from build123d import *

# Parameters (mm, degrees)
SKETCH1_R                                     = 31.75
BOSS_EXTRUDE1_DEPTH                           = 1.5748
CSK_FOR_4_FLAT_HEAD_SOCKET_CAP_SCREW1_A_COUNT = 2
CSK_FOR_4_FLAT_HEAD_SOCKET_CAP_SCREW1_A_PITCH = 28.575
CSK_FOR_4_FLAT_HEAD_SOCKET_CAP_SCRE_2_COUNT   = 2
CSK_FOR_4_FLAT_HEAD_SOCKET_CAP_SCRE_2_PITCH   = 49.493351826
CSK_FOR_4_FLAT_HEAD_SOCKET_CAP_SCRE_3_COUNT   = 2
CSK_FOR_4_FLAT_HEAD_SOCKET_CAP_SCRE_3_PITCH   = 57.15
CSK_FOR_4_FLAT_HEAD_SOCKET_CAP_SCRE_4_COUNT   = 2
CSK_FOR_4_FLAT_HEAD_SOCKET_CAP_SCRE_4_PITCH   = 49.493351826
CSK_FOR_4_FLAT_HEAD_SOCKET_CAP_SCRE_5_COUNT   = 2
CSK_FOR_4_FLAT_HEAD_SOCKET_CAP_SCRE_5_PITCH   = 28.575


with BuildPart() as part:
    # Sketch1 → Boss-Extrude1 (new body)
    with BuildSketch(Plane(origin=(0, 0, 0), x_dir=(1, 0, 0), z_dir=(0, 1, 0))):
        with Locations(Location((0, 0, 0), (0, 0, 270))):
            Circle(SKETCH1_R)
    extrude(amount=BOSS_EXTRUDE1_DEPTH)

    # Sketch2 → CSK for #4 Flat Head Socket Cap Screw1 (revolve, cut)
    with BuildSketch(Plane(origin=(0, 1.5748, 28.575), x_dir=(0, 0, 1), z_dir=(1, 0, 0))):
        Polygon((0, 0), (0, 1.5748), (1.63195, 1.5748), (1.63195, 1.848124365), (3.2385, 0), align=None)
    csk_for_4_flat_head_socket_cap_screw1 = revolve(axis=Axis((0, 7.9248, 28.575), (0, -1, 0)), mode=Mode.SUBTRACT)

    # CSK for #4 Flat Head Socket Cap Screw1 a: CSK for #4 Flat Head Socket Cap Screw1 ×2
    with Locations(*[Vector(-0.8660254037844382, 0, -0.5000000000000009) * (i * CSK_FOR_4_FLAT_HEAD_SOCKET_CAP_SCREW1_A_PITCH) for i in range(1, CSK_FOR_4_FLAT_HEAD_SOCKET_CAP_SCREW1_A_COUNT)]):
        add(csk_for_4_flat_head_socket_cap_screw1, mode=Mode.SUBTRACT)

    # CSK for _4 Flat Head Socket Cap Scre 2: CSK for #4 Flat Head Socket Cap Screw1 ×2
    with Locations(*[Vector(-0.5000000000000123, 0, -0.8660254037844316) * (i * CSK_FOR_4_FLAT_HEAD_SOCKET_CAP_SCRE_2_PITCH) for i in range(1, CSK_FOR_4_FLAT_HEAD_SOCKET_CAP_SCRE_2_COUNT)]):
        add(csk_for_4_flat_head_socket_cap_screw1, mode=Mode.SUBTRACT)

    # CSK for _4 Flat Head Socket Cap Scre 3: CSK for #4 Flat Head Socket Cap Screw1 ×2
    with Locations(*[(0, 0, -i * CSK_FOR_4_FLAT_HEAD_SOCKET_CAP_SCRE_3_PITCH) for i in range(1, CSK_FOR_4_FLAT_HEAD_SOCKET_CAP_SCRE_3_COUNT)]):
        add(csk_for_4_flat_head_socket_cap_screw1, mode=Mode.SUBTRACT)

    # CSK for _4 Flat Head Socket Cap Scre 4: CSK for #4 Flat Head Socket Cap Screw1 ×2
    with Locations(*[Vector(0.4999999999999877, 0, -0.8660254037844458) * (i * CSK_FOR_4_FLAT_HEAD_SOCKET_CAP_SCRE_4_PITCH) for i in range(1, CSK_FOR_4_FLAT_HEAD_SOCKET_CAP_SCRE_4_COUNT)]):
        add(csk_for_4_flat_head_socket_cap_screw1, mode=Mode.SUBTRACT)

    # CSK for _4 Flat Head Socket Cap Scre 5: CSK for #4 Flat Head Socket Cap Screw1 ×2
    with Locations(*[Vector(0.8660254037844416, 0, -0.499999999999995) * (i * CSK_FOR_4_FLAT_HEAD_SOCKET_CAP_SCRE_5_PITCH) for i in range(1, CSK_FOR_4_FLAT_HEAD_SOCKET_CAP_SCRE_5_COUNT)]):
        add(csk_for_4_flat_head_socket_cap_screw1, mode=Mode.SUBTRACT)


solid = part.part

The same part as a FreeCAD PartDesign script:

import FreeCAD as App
import Part
import Sketcher

V = App.Vector
Q = App.Units.Quantity

doc = App.newDocument("Part")
body = doc.addObject("PartDesign::Body", "Body")

sketch1 = body.newObject("Sketcher::SketchObject", "Sketch")
sketch1.AttachmentSupport = (doc.getObject("XZ_Plane"), [""])
sketch1.MapMode = "FlatFace"
sketch1.addGeometry(Part.Circle(V(0, 0, 0), V(0, 0, 1), 32), False)
sketch1.addConstraint([
    Sketcher.Constraint("Coincident", 0, 3, -1, 1),
    Sketcher.Constraint("Diameter", 0, Q("2.5 in")),
])
pad1 = body.newObject("PartDesign::Pad", "Pad")
pad1.Profile = sketch1
pad1.Length = Q("0.062 in")
pad1.Reversed = True

sketch2 = body.newObject("Sketcher::SketchObject", "Sketch001")
sketch2.AttachmentSupport = (doc.getObject("YZ_Plane"), [""])
sketch2.MapMode = "FlatFace"
sketch2.addGeometry([
    Part.LineSegment(V(0, 28.57, 0), V(1.57, 28.57, 0)),
    Part.LineSegment(V(1.57, 28.57, 0), V(1.57, 31.81, 0)),
    Part.LineSegment(V(1.57, 31.81, 0), V(-0.27, 30.21, 0)),
    Part.LineSegment(V(-0.27, 30.21, 0), V(0, 30.21, 0)),
    Part.LineSegment(V(0, 30.21, 0), V(0, 28.57, 0)),
], False)
sketch2.addGeometry(Part.LineSegment(V(1.57, 28.57, 0), V(-0.27, 28.57, 0)), True)
sketch2.addConstraint([
    Sketcher.Constraint("Coincident", 0, 2, 1, 1),
    Sketcher.Constraint("Coincident", 1, 2, 2, 1),
    Sketcher.Constraint("Coincident", 2, 2, 3, 1),
    Sketcher.Constraint("Coincident", 3, 2, 4, 1),
    Sketcher.Constraint("Coincident", 4, 2, 0, 1),
    Sketcher.Constraint("Horizontal", 0),
    Sketcher.Constraint("Vertical", 1),
    Sketcher.Constraint("Horizontal", 3),
    Sketcher.Constraint("Vertical", 4),
    Sketcher.Constraint("Horizontal", 5),
    Sketcher.Constraint("Coincident", 5, 1, 0, 2),
    Sketcher.Constraint("PointOnObject", 3, 2, -2),
    Sketcher.Constraint("Vertical", 2, 2, 5, 2),
    Sketcher.Constraint("Angle", 2, Q("-139 deg")),
    Sketcher.Constraint("DistanceX", 0, 1, 0, 2, Q("0.062 in")),
    Sketcher.Constraint("DistanceY", 1, 1, 1, 2, Q("0.1275 in")),
    Sketcher.Constraint("DistanceY", -1, 1, 0, 2, Q("1.125 in")),
    Sketcher.Constraint("DistanceY", 4, 2, 4, 1, Q("1.63195 mm")),
])
groove = body.newObject("PartDesign::Groove", "Groove")
groove.Profile = sketch2
groove.ReferenceAxis = (sketch2, ["Axis0"])
groove.Angle = 360
doc.recompute()

datumline = body.newObject("PartDesign::Line", "DatumLine")
datumline.Placement = App.Placement(V(0, 0, 0), App.Rotation(V(0, 0, 1), V(-0.866025404, 0, -0.5)))
linearpattern = body.newObject("PartDesign::LinearPattern", "LinearPattern")
linearpattern.Originals = [groove]
linearpattern.Direction = (datumline, [""])
linearpattern.Mode = "offset"
linearpattern.Offset = Q("1.125 in")
linearpattern.Occurrences = 2
body.Tip = linearpattern
doc.recompute()

datumline2 = body.newObject("PartDesign::Line", "DatumLine001")
datumline2.Placement = App.Placement(V(0, 0, 0), App.Rotation(V(0, 0, 1), V(-0.5, 0, -0.866025404)))
linearpattern2 = body.newObject("PartDesign::LinearPattern", "LinearPattern001")
linearpattern2.Originals = [groove]
linearpattern2.Direction = (datumline2, [""])
linearpattern2.Mode = "offset"
linearpattern2.Offset = 49.493352
linearpattern2.Occurrences = 2
body.Tip = linearpattern2
doc.recompute()

linearpattern3 = body.newObject("PartDesign::LinearPattern", "LinearPattern002")
linearpattern3.Originals = [groove]
linearpattern3.Direction = (doc.getObject("Z_Axis"), [""])
linearpattern3.Mode = "offset"
linearpattern3.Offset = Q("2.25 in")
linearpattern3.Occurrences = 2
linearpattern3.Reversed = True
body.Tip = linearpattern3
doc.recompute()

datumline3 = body.newObject("PartDesign::Line", "DatumLine002")
datumline3.Placement = App.Placement(V(0, 0, 0), App.Rotation(V(0, 0, 1), V(0.5, 0, -0.866025404)))
linearpattern4 = body.newObject("PartDesign::LinearPattern", "LinearPattern003")
linearpattern4.Originals = [groove]
linearpattern4.Direction = (datumline3, [""])
linearpattern4.Mode = "offset"
linearpattern4.Offset = 49.493352
linearpattern4.Occurrences = 2
body.Tip = linearpattern4
doc.recompute()

datumline4 = body.newObject("PartDesign::Line", "DatumLine003")
datumline4.Placement = App.Placement(V(0, 0, 0), App.Rotation(V(0, 0, 1), V(0.866025404, 0, -0.5)))
linearpattern5 = body.newObject("PartDesign::LinearPattern", "LinearPattern004")
linearpattern5.Originals = [groove]
linearpattern5.Direction = (datumline4, [""])
linearpattern5.Mode = "offset"
linearpattern5.Offset = Q("1.125 in")
linearpattern5.Occurrences = 2
body.Tip = linearpattern5

doc.recompute()
